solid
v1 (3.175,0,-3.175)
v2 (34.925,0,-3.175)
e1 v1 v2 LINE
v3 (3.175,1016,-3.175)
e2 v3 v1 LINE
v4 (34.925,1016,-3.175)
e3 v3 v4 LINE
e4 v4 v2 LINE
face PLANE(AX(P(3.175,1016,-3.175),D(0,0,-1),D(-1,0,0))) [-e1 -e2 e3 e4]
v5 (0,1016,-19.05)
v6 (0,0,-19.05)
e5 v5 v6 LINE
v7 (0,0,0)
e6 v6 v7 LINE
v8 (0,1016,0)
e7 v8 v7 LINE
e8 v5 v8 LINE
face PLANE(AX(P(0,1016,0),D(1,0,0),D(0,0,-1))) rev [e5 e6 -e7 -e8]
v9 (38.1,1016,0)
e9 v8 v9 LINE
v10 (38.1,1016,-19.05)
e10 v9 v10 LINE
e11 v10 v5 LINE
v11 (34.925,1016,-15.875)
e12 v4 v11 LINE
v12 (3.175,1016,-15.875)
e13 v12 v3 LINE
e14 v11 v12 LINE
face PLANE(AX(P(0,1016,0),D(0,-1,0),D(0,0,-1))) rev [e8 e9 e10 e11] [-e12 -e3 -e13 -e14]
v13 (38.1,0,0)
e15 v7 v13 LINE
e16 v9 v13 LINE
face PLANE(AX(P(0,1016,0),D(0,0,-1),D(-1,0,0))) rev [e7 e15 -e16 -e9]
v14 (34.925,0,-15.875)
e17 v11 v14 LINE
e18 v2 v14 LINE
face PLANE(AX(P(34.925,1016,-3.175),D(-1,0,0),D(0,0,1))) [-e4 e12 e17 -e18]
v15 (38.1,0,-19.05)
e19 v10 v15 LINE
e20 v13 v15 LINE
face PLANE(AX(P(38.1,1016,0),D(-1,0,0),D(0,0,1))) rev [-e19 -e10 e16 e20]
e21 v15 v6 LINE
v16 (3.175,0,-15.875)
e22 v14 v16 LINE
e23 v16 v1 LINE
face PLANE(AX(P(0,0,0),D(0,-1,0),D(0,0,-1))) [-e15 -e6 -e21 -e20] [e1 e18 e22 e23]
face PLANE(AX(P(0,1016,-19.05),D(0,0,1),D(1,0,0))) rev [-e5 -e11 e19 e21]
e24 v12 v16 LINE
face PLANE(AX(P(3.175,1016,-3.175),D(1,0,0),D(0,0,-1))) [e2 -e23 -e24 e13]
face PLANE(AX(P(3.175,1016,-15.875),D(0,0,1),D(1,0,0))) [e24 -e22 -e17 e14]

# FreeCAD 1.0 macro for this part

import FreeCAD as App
import Part
import Sketcher
Q = App.Units.Quantity


def add_polygon(sketch, points):
    """Adds a closed chain of lines whose ends are joined by coincident constraints."""
    first, n = sketch.GeometryCount, len(points)
    for a, b in zip(points, points[1:] + points[:1]):
        sketch.addGeometry(Part.LineSegment(App.Vector(*a, 0), App.Vector(*b, 0)), False)
    for i in range(n):
        sketch.addConstraint(Sketcher.Constraint("Coincident", first + i, 2, first + (i + 1) % n, 1))

doc = App.newDocument("Part")
body = doc.addObject("PartDesign::Body", "Body")

sketch1 = body.newObject("Sketcher::SketchObject", "Sketch")
sketch1.AttachmentSupport = (doc.getObject("XZ_Plane"), [""])
sketch1.MapMode = "FlatFace"
add_polygon(sketch1, [(0, -19), (0, 0), (38, 0), (38, -19)])
add_polygon(sketch1, [(35, -3), (3, -3), (3, -16), (35, -16)])
sketch1.addConstraint([
    Sketcher.Constraint("Vertical", 0),
    Sketcher.Constraint("Horizontal", 1),
    Sketcher.Constraint("Vertical", 2),
    Sketcher.Constraint("Horizontal", 3),
    Sketcher.Constraint("Horizontal", 4),
    Sketcher.Constraint("Vertical", 5),
    Sketcher.Constraint("Horizontal", 6),
    Sketcher.Constraint("Vertical", 7),
    Sketcher.Constraint("Coincident", 0, 2, -1, 1),
    Sketcher.Constraint("DistanceX", 1, 1, 1, 2, Q("1.5 in")),
    Sketcher.Constraint("DistanceY", 5, 2, 5, 1, Q("0.5 in")),
    Sketcher.Constraint("DistanceX", 4, 2, 4, 1, Q("1.25 in")),
    Sketcher.Constraint("DistanceY", 0, 1, 0, 2, Q("0.75 in")),
    Sketcher.Constraint("DistanceX", -1, 1, 4, 2, Q("0.125 in")),
    Sketcher.Constraint("DistanceY", 4, 2, -1, 1, Q("0.125 in")),
])
pad1 = body.newObject("PartDesign::Pad", "Pad")
pad1.Profile = sketch1
pad1.Length = Q("40 in")
pad1.Reversed = True

doc.recompute()
